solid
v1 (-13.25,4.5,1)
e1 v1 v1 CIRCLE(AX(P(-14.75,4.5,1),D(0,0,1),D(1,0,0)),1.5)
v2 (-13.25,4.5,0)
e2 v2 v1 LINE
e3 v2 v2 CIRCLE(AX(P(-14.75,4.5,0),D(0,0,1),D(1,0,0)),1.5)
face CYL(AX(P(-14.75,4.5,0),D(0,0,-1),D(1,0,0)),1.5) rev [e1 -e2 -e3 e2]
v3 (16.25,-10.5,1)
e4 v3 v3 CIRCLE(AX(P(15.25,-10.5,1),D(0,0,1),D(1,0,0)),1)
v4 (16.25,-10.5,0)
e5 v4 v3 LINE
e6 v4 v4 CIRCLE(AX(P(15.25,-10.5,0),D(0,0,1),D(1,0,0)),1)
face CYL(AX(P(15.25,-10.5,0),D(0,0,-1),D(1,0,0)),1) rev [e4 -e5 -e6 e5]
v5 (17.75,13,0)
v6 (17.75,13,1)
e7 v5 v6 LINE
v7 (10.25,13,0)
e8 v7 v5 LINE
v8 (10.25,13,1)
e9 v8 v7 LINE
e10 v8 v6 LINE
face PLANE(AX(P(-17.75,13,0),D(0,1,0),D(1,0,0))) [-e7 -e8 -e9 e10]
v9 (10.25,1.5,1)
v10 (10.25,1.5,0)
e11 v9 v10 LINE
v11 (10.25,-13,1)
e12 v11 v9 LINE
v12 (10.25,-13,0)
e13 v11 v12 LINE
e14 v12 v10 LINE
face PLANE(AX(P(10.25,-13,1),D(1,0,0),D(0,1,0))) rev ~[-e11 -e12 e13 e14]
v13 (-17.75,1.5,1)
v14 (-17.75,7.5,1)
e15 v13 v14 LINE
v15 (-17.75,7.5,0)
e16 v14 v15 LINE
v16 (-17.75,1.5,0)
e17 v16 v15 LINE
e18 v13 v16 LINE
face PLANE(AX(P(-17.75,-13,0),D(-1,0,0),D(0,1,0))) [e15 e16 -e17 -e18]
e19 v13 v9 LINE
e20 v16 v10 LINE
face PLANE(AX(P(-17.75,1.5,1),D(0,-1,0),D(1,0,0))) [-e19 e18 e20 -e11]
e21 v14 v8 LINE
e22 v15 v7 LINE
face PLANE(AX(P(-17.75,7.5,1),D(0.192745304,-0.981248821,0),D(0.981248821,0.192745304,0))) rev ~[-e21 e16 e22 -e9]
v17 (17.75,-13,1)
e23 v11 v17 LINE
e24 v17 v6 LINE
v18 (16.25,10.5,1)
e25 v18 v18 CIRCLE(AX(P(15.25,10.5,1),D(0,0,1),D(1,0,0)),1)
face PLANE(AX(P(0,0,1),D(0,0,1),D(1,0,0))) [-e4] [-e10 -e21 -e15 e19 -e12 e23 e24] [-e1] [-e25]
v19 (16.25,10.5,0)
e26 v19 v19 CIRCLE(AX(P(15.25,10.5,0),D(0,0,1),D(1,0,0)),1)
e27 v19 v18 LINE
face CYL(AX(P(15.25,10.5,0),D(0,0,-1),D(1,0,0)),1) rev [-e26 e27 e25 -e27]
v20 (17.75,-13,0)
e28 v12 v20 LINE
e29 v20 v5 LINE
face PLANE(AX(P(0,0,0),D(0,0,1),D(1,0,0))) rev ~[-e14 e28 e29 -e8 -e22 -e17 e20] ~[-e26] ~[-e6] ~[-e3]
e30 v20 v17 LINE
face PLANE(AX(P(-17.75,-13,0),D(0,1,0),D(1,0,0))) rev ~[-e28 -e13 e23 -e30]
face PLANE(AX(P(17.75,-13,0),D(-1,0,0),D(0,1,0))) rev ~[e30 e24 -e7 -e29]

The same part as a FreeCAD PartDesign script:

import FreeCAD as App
import Part
import Sketcher

V = App.Vector

doc = App.newDocument("Part")
body = doc.addObject("PartDesign::Body", "Body")

# Sketch on XY plane
sketch1 = body.newObject("Sketcher::SketchObject", "Sketch")
sketch1.AttachmentSupport = (doc.getObject("XY_Plane"), [""])
sketch1.MapMode = "FlatFace"
sketch1.addGeometry(Part.LineSegment(V(-17.8, 13, 0), V(-17.8, -13, 0)), False)
sketch1.addGeometry(Part.LineSegment(V(-17.8, -13, 0), V(17.8, -13, 0)), False)
sketch1.addGeometry(Part.LineSegment(V(17.8, -13, 0), V(17.8, 13, 0)), False)
sketch1.addGeometry(Part.LineSegment(V(17.8, 13, 0), V(-17.8, 13, 0)), False)
sketch1.addGeometry(Part.Circle(V(15.2, -10.5, 0), V(0, 0, 1), 1), False)
sketch1.addGeometry(Part.Circle(V(-14.8, 4.5, 0), V(0, 0, 1), 1.5), False)
sketch1.addGeometry(Part.Circle(V(15.2, 10.5, 0), V(0, 0, 1), 1), False)
sketch1.addConstraint(Sketcher.Constraint("Coincident", 0, 2, 1, 1))
sketch1.addConstraint(Sketcher.Constraint("Coincident", 1, 2, 2, 1))
sketch1.addConstraint(Sketcher.Constraint("Coincident", 2, 2, 3, 1))
sketch1.addConstraint(Sketcher.Constraint("Coincident", 3, 2, 0, 1))
sketch1.addConstraint(Sketcher.Constraint("Vertical", 0))
sketch1.addConstraint(Sketcher.Constraint("Horizontal", 1))
sketch1.addConstraint(Sketcher.Constraint("Vertical", 2))
sketch1.addConstraint(Sketcher.Constraint("Horizontal", 3))
sketch1.addConstraint(Sketcher.Constraint("Equal", 4, 6))
sketch1.addConstraint(Sketcher.Constraint("Symmetric", 0, 2, 2, 2, -1, 1))
sketch1.addConstraint(Sketcher.Constraint("Symmetric", 4, 3, 6, 3, -1))
sketch1.addConstraint(Sketcher.Constraint("Diameter", 4, 2.0))
sketch1.addConstraint(Sketcher.Constraint("Diameter", 5, 3.0))
sketch1.addConstraint(Sketcher.Constraint("DistanceY", 0, 2, 0, 1, 26.0))
sketch1.addConstraint(Sketcher.Constraint("DistanceX", 1, 1, 1, 2, 35.5))
sketch1.addConstraint(Sketcher.Constraint("DistanceX", 5, 3, 4, 3, 30.0))
sketch1.addConstraint(Sketcher.Constraint("DistanceY", 4, 3, 5, 3, 15.0))
sketch1.addConstraint(Sketcher.Constraint("DistanceY", 4, 3, 6, 3, 21.0))
sketch1.addConstraint(Sketcher.Constraint("DistanceX", 0, 2, 5, 3, 3.0))
pad1 = body.newObject("PartDesign::Pad", "Pad")
pad1.Profile = sketch1
pad1.Length = 1

# Sketch on XY plane
sketch2 = body.newObject("Sketcher::SketchObject", "Sketch001")
sketch2.AttachmentSupport = (doc.getObject("XY_Plane"), [""])
sketch2.MapMode = "FlatFace"
sketch2.AttachmentOffset = App.Placement(V(0, 0, 1), App.Rotation())
sketch2.addGeometry(Part.LineSegment(V(-18, 2, 0), V(-18, -13, 0)), False)
sketch2.addGeometry(Part.LineSegment(V(-18, -13, 0), V(10, -13, 0)), False)
sketch2.addGeometry(Part.LineSegment(V(10, -13, 0), V(10, 2, 0)), False)
sketch2.addGeometry(Part.LineSegment(V(10, 2, 0), V(-18, 2, 0)), False)
sketch2.addGeometry(Part.LineSegment(V(-18, 13, 0), V(-18, 8, 0)), False)
sketch2.addGeometry(Part.LineSegment(V(-18, 8, 0), V(10, 13, 0)), False)
sketch2.addGeometry(Part.LineSegment(V(10, 13, 0), V(-18, 13, 0)), False)
sketch2.addConstraint(Sketcher.Constraint("Coincident", 0, 2, 1, 1))
sketch2.addConstraint(Sketcher.Constraint("Coincident", 1, 2, 2, 1))
sketch2.addConstraint(Sketcher.Constraint("Coincident", 2, 2, 3, 1))
sketch2.addConstraint(Sketcher.Constraint("Coincident", 3, 2, 0, 1))
sketch2.addConstraint(Sketcher.Constraint("Coincident", 4, 2, 5, 1))
sketch2.addConstraint(Sketcher.Constraint("Coincident", 5, 2, 6, 1))
sketch2.addConstraint(Sketcher.Constraint("Coincident", 6, 2, 4, 1))
sketch2.addConstraint(Sketcher.Constraint("Vertical", 0))
sketch2.addConstraint(Sketcher.Constraint("Horizontal", 1))
sketch2.addConstraint(Sketcher.Constraint("Vertical", 2))
sketch2.addConstraint(Sketcher.Constraint("Horizontal", 3))
sketch2.addConstraint(Sketcher.Constraint("Vertical", 4))
sketch2.addConstraint(Sketcher.Constraint("Horizontal", 6))
sketch2.addConstraint(Sketcher.Constraint("Symmetric", 1, 2, 5, 2, -1))
sketch2.addConstraint(Sketcher.Constraint("Vertical", 3, 2, 4, 2))
sketch2.addConstraint(Sketcher.Constraint("DistanceX", 1, 1, 1, 2, 28.0))
sketch2.addConstraint(Sketcher.Constraint("DistanceY", 0, 2, 0, 1, 14.5))
sketch2.addConstraint(Sketcher.Constraint("DistanceY", 4, 2, 4, 1, 5.5))
sketch2.addConstraint(Sketcher.Constraint("DistanceY", 0, 2, -1, 1, 13.0))
sketch2.addConstraint(Sketcher.Constraint("DistanceX", 0, 2, -1, 1, 17.75))
pocket1 = body.newObject("PartDesign::Pocket", "Pocket")
pocket1.Profile = sketch2
pocket1.Type = "ThroughAll"

doc.recompute()
